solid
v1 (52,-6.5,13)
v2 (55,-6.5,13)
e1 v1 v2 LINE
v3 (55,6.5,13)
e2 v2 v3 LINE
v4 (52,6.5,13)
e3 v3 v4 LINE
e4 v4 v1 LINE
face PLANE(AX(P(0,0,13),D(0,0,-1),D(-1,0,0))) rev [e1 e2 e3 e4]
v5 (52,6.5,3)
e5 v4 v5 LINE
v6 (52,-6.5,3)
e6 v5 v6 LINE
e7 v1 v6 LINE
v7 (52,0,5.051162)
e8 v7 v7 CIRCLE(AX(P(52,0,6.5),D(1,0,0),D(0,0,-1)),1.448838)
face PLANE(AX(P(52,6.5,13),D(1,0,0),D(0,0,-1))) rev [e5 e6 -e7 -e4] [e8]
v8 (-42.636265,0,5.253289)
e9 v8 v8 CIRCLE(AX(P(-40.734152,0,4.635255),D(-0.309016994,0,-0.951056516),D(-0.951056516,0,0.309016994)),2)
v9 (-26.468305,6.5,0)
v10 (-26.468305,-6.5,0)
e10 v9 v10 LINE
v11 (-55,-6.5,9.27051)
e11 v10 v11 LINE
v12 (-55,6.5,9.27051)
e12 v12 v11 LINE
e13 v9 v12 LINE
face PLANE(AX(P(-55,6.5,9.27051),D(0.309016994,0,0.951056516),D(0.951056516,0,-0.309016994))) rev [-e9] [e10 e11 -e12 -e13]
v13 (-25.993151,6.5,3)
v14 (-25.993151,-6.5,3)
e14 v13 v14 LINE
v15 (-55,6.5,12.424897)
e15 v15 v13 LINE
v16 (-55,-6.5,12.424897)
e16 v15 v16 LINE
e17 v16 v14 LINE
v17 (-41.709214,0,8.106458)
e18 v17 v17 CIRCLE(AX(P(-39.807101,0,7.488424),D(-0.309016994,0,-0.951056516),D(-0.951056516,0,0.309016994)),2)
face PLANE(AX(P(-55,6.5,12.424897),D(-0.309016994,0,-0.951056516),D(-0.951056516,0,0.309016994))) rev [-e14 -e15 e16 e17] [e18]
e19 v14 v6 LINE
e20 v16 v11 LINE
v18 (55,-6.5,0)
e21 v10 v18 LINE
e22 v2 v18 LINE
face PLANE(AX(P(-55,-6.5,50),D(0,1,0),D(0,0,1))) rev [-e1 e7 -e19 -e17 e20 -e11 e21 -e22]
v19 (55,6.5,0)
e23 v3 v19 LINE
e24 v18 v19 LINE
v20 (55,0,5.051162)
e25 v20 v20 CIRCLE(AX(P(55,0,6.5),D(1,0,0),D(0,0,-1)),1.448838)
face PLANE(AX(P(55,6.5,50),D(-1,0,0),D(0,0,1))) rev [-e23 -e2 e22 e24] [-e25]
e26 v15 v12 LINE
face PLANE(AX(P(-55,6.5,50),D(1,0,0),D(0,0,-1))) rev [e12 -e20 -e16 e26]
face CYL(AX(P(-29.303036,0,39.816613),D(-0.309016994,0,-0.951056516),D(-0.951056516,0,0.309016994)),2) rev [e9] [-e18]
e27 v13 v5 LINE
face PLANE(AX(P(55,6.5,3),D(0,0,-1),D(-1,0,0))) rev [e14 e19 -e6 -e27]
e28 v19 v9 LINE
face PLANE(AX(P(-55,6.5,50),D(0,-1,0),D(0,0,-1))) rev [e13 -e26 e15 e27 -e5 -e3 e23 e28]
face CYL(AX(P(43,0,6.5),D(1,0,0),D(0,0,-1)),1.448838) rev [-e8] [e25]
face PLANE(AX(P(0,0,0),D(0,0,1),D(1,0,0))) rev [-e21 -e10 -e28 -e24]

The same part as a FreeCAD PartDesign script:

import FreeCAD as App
import Part
import Sketcher

V = App.Vector
Q = App.Units.Quantity


def add_polygon(sketch, points):
    """Adds a closed chain of lines whose ends are joined by coincident constraints."""
    first, n = sketch.GeometryCount, len(points)
    for a, b in zip(points, points[1:] + points[:1]):
        sketch.addGeometry(Part.LineSegment(App.Vector(*a, 0), App.Vector(*b, 0)), False)
    for i in range(n):
        sketch.addConstraint(Sketcher.Constraint("Coincident", first + i, 2, first + (i + 1) % n, 1))

doc = App.newDocument("Part")
body = doc.addObject("PartDesign::Body", "Body")

# Sketch on XY plane
sketch1 = body.newObject("Sketcher::SketchObject", "Sketch")
sketch1.AttachmentSupport = (doc.getObject("XY_Plane"), [""])
sketch1.MapMode = "FlatFace"
add_polygon(sketch1, [(-55, 6), (-55, -6), (55, -6), (55, 6)])  # lines 0-3
sketch1.addConstraint([
    Sketcher.Constraint("Vertical", 0),
    Sketcher.Constraint("Horizontal", 1),
    Sketcher.Constraint("Vertical", 2),
    Sketcher.Constraint("Horizontal", 3),
    Sketcher.Constraint("Symmetric", 0, 2, 2, 2, -1, 1),
    Sketcher.Constraint("DistanceX", 1, 1, 1, 2, 110.0),
    Sketcher.Constraint("DistanceY", 0, 2, 0, 1, 13.0),
])
pad1 = body.newObject("PartDesign::Pad", "Pad")
pad1.Profile = sketch1
pad1.Length = 50

# Sketch on XZ plane
sketch2 = body.newObject("Sketcher::SketchObject", "Sketch001")
sketch2.AttachmentSupport = (doc.getObject("XZ_Plane"), [""])
sketch2.MapMode = "FlatFace"
sketch2.AttachmentOffset = App.Placement(V(0, 0, 6.5), App.Rotation())
add_polygon(sketch2, [(-26, 0), (-55, 9), (-55, 0)])  # lines 0-2
sketch2.addConstraint([
    Sketcher.Constraint("Vertical", 1),
    Sketcher.Constraint("Horizontal", 2),
    Sketcher.Constraint("PointOnObject", 1, 2, -1),
    Sketcher.Constraint("Angle", 0, Q("162 deg")),
    Sketcher.Constraint("Distance", 0, 30.0),
    Sketcher.Constraint("DistanceX", 0, 2, -1, 1, 55.0),
])
pocket1 = body.newObject("PartDesign::Pocket", "Pocket")
pocket1.Profile = sketch2
pocket1.Type = "ThroughAll"

# Sketch on XZ plane
sketch3 = body.newObject("Sketcher::SketchObject", "Sketch002")
sketch3.AttachmentSupport = (doc.getObject("XZ_Plane"), [""])
sketch3.MapMode = "FlatFace"
sketch3.AttachmentOffset = App.Placement(V(0, 0, 6.5), App.Rotation())
add_polygon(sketch3, [(-55, 12), (-26, 3), (55, 3), (55, 50), (-55, 50)])  # lines 0-4
sketch3.addConstraint([
    Sketcher.Constraint("Horizontal", 1),
    Sketcher.Constraint("Vertical", 2),
    Sketcher.Constraint("Horizontal", 3),
    Sketcher.Constraint("Vertical", 4),
    Sketcher.Constraint("DistanceX", 3, 2, 3, 1, 110.0),
    Sketcher.Constraint("DistanceY", 2, 1, 2, 2, 47.0),
    Sketcher.Constraint("Angle", 0, Q("-18 deg")),
    Sketcher.Constraint("DistanceY", -1, 1, 0, 2, 3.0),
    Sketcher.Constraint("DistanceX", -1, 1, 1, 2, 55.0),
    Sketcher.Constraint("DistanceX", 1, 1, 1, 2, 80.993151),
])
pocket2 = body.newObject("PartDesign::Pocket", "Pocket001")
pocket2.Profile = sketch3
pocket2.Type = "ThroughAll"

# Sketch on an angled plane
sketch4 = body.newObject("Sketcher::SketchObject", "Sketch003")
sketch4.Placement = App.Placement(V(-2.527498, 0, -7.77884), App.Rotation(V(-0.951056516, 0, 0.309016994), V(0, 0.999999999, 0), V(-0.309016994, 0, -0.951056516), "ZXY"))
sketch4.addGeometry(Part.Circle(V(40.2, 0, 0), V(0, 0, 1), 2), False)
sketch4.addConstraint([
    Sketcher.Constraint("PointOnObject", 0, 3, -1),
    Sketcher.Constraint("Diameter", 0, 4.0),
    Sketcher.Constraint("DistanceX", -1, 1, 0, 3, 40.172853),
])
pocket3 = body.newObject("PartDesign::Pocket", "Pocket002")
pocket3.Profile = sketch4
pocket3.Type = "ThroughAll"

# Sketch on XY plane
sketch5 = body.newObject("Sketcher::SketchObject", "Sketch004")
sketch5.AttachmentSupport = (doc.getObject("XY_Plane"), [""])
sketch5.MapMode = "FlatFace"
sketch5.AttachmentOffset = App.Placement(V(0, 0, 3), App.Rotation())
add_polygon(sketch5, [(52, 6.5), (52, -6.5), (55, -6.5), (55, 6.5)])  # lines 0-3
sketch5.addConstraint([
    Sketcher.Constraint("Vertical", 0),
    Sketcher.Constraint("Horizontal", 1),
    Sketcher.Constraint("Vertical", 2),
    Sketcher.Constraint("Horizontal", 3),
    Sketcher.Constraint("DistanceX", 1, 1, 1, 2, 3.0),
    Sketcher.Constraint("DistanceY", 0, 2, 0, 1, 13.0),
    Sketcher.Constraint("DistanceX", -1, 1, 0, 2, 52.0),
    Sketcher.Constraint("DistanceY", 0, 2, -1, 1, 6.5),
])
pad2 = body.newObject("PartDesign::Pad", "Pad001")
pad2.Profile = sketch5
pad2.Length = 10

# Sketch on YZ plane
sketch6 = body.newObject("Sketcher::SketchObject", "Sketch005")
sketch6.AttachmentSupport = (doc.getObject("YZ_Plane"), [""])
sketch6.MapMode = "FlatFace"
sketch6.AttachmentOffset = App.Placement(V(0, 0, 55), App.Rotation())
sketch6.addGeometry(Part.Circle(V(0, 6.5, 0), V(0, 0, 1), 1.4), False)
sketch6.addConstraint([
    Sketcher.Constraint("PointOnObject", 0, 3, -2),
    Sketcher.Constraint("DistanceY", -1, 1, 0, 3, 6.5),
    Sketcher.Constraint("Diameter", 0, 2.897677),
])
pocket4 = body.newObject("PartDesign::Pocket", "Pocket003")
pocket4.Profile = sketch6
pocket4.Length = 12

doc.recompute()
